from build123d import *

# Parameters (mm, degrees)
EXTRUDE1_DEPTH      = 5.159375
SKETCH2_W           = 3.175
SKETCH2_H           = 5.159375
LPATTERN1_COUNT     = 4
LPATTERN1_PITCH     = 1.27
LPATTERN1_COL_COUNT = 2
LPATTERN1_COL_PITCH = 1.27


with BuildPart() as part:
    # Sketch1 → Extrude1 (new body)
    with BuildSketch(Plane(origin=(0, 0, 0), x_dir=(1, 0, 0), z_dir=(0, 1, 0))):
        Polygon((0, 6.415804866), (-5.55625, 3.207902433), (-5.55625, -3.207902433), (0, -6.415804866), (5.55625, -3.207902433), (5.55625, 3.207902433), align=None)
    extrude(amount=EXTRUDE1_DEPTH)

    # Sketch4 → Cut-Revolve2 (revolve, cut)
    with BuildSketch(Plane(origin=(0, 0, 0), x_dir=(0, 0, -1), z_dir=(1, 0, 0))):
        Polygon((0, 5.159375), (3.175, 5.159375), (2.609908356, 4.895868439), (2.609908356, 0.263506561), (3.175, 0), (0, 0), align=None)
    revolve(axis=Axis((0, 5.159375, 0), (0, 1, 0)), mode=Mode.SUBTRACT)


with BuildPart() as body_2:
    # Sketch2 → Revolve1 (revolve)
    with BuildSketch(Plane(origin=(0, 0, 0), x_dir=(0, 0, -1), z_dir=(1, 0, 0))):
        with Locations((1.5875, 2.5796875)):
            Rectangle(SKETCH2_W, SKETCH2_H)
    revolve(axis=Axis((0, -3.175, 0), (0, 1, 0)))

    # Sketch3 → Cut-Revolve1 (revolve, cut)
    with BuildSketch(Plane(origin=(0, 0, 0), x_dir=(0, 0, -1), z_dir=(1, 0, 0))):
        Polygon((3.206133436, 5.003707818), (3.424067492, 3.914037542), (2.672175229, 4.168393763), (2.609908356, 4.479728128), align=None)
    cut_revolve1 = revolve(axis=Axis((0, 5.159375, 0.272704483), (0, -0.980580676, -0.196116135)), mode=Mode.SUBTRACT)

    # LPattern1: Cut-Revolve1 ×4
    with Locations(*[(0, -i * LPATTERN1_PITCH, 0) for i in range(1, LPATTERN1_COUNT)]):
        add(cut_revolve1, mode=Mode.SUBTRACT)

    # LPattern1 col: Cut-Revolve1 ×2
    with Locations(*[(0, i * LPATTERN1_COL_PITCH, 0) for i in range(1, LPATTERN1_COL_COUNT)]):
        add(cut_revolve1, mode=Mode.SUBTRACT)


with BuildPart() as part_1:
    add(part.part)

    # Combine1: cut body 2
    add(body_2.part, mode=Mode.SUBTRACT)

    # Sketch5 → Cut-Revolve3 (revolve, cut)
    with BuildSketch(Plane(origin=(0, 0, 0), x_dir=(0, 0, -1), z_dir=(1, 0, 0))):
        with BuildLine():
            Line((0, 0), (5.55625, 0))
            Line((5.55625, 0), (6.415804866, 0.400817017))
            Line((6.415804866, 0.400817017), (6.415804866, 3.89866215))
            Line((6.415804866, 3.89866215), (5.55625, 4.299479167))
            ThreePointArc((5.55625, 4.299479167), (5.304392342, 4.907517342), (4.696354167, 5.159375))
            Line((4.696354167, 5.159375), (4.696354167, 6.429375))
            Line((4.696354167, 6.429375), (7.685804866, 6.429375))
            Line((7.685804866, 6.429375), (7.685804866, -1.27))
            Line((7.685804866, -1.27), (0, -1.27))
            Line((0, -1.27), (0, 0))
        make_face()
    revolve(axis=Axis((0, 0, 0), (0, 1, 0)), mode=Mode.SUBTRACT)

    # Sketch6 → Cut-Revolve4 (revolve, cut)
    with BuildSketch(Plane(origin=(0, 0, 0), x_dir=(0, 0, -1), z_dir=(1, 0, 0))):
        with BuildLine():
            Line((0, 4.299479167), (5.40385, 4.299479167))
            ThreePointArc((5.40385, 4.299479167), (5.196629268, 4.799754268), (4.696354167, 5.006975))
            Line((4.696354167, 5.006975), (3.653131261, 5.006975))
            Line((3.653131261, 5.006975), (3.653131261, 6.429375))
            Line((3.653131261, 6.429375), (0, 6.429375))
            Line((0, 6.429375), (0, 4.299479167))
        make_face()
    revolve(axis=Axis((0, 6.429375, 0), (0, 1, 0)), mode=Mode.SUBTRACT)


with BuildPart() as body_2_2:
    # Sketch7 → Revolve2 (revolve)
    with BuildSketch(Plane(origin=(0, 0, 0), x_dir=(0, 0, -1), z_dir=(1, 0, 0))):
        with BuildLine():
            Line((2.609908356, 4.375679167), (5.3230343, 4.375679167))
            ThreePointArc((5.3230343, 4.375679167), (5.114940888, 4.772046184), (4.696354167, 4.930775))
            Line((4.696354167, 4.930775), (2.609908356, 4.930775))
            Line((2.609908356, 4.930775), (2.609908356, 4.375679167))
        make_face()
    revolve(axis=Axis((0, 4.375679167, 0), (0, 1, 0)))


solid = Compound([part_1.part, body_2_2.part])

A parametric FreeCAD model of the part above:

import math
import FreeCAD as App
import Part
import Sketcher
Q = App.Units.Quantity

doc = App.newDocument("Part")
body = doc.addObject("PartDesign::Body", "Body")

sketch1 = body.newObject("Sketcher::SketchObject", "Sketch")
sketch1.AttachmentSupport = (doc.getObject("XZ_Plane"), [""])
sketch1.MapMode = "FlatFace"
sketch1.addGeometry(Part.LineSegment(App.Vector(0, -6, 0), App.Vector(-6, -3, 0)), False)
sketch1.addGeometry(Part.LineSegment(App.Vector(-6, -3, 0), App.Vector(-6, 3, 0)), False)
sketch1.addGeometry(Part.LineSegment(App.Vector(-6, 3, 0), App.Vector(0, 6, 0)), False)
sketch1.addGeometry(Part.LineSegment(App.Vector(0, 6, 0), App.Vector(6, 3, 0)), False)
sketch1.addGeometry(Part.LineSegment(App.Vector(6, 3, 0), App.Vector(6, -3, 0)), False)
sketch1.addGeometry(Part.LineSegment(App.Vector(6, -3, 0), App.Vector(0, -6, 0)), False)
sketch1.addConstraint(Sketcher.Constraint("Coincident", 0, 2, 1, 1))
sketch1.addConstraint(Sketcher.Constraint("Coincident", 1, 2, 2, 1))
sketch1.addConstraint(Sketcher.Constraint("Coincident", 2, 2, 3, 1))
sketch1.addConstraint(Sketcher.Constraint("Coincident", 3, 2, 4, 1))
sketch1.addConstraint(Sketcher.Constraint("Coincident", 4, 2, 5, 1))
sketch1.addConstraint(Sketcher.Constraint("Coincident", 5, 2, 0, 1))
sketch1.addConstraint(Sketcher.Constraint("Vertical", 1))
sketch1.addConstraint(Sketcher.Constraint("Vertical", 4))
sketch1.addConstraint(Sketcher.Constraint("Symmetric", 0, 2, 3, 2, -1, 1))
sketch1.addConstraint(Sketcher.Constraint("Symmetric", 2, 2, 5, 2, -1, 1))
sketch1.addConstraint(Sketcher.Constraint("PointOnObject", 2, 2, -2))
sketch1.addConstraint(Sketcher.Constraint("Parallel", 2, 5))
sketch1.addConstraint(Sketcher.Constraint("Horizontal", 1, 2, 3, 2))
sketch1.addConstraint(Sketcher.Constraint("Angle", 0, Q("150 deg")))
sketch1.addConstraint(Sketcher.Constraint("DistanceX", 0, 2, -1, 1, Q("0.21875 in")))
sketch1.addConstraint(Sketcher.Constraint("DistanceY", 1, 1, 1, 2, 6.415805))
pad1 = body.newObject("PartDesign::Pad", "Pad")
pad1.Profile = sketch1
pad1.Length = Q("0.203125 in")
pad1.Reversed = True

sketch2 = body.newObject("Sketcher::SketchObject", "Sketch001")
sketch2.AttachmentSupport = (doc.getObject("YZ_Plane"), [""])
sketch2.MapMode = "FlatFace"
sketch2.addGeometry(Part.LineSegment(App.Vector(5.2, -3.2, 0), App.Vector(5.2, 0, 0)), False)
sketch2.addGeometry(Part.LineSegment(App.Vector(5.2, 0, 0), App.Vector(0, 0, 0)), False)
sketch2.addGeometry(Part.LineSegment(App.Vector(0, 0, 0), App.Vector(0, -3.2, 0)), False)
sketch2.addGeometry(Part.LineSegment(App.Vector(0, -3.2, 0), App.Vector(0.3, -2.6, 0)), False)
sketch2.addGeometry(Part.LineSegment(App.Vector(0.3, -2.6, 0), App.Vector(4.9, -2.6, 0)), False)
sketch2.addGeometry(Part.LineSegment(App.Vector(4.9, -2.6, 0), App.Vector(5.2, -3.2, 0)), False)
sketch2.addConstraint(Sketcher.Constraint("Coincident", 0, 2, 1, 1))
sketch2.addConstraint(Sketcher.Constraint("Coincident", 1, 2, 2, 1))
sketch2.addConstraint(Sketcher.Constraint("Coincident", 2, 2, 3, 1))
sketch2.addConstraint(Sketcher.Constraint("Coincident", 3, 2, 4, 1))
sketch2.addConstraint(Sketcher.Constraint("Coincident", 4, 2, 5, 1))
sketch2.addConstraint(Sketcher.Constraint("Coincident", 5, 2, 0, 1))
sketch2.addConstraint(Sketcher.Constraint("Vertical", 0))
sketch2.addConstraint(Sketcher.Constraint("Horizontal", 1))
sketch2.addConstraint(Sketcher.Constraint("Vertical", 2))
sketch2.addConstraint(Sketcher.Constraint("Horizontal", 4))
sketch2.addConstraint(Sketcher.Constraint("Coincident", 1, 2, -1, 1))
sketch2.addConstraint(Sketcher.Constraint("Horizontal", 2, 2, 5, 2))
sketch2.addConstraint(Sketcher.Constraint("Equal", 3, 5))
sketch2.addConstraint(Sketcher.Constraint("Angle", 3, Q("65 deg")))
sketch2.addConstraint(Sketcher.Constraint("DistanceX", 1, 2, 1, 1, Q("0.203125 in")))
sketch2.addConstraint(Sketcher.Constraint("DistanceY", 0, 1, 0, 2, Q("0.125 in")))
sketch2.addConstraint(Sketcher.Constraint("DistanceX", 4, 1, 4, 2, 4.632362))
groove = body.newObject("PartDesign::Groove", "Groove")
groove.Profile = sketch2
groove.ReferenceAxis = (sketch2, ["H_Axis"])
groove.Angle = 360
body2 = doc.addObject("PartDesign::Body", "Body001")

sketch3 = body2.newObject("Sketcher::SketchObject", "Sketch002")
sketch3.AttachmentSupport = (doc.getObject("YZ_Plane001"), [""])
sketch3.MapMode = "FlatFace"
sketch3.addGeometry(Part.LineSegment(App.Vector(5.2, 0, 0), App.Vector(0, 0, 0)), False)
sketch3.addGeometry(Part.LineSegment(App.Vector(0, 0, 0), App.Vector(0, -3.2, 0)), False)
sketch3.addGeometry(Part.LineSegment(App.Vector(0, -3.2, 0), App.Vector(5.2, -3.2, 0)), False)
sketch3.addGeometry(Part.LineSegment(App.Vector(5.2, -3.2, 0), App.Vector(5.2, 0, 0)), False)
sketch3.addConstraint(Sketcher.Constraint("Coincident", 0, 2, 1, 1))
sketch3.addConstraint(Sketcher.Constraint("Coincident", 1, 2, 2, 1))
sketch3.addConstraint(Sketcher.Constraint("Coincident", 2, 2, 3, 1))
sketch3.addConstraint(Sketcher.Constraint("Coincident", 3, 2, 0, 1))
sketch3.addConstraint(Sketcher.Constraint("Horizontal", 0))
sketch3.addConstraint(Sketcher.Constraint("Vertical", 1))
sketch3.addConstraint(Sketcher.Constraint("Horizontal", 2))
sketch3.addConstraint(Sketcher.Constraint("Vertical", 3))
sketch3.addConstraint(Sketcher.Constraint("Coincident", 0, 2, -1, 1))
sketch3.addConstraint(Sketcher.Constraint("DistanceX", 0, 2, 0, 1, Q("0.203125 in")))
sketch3.addConstraint(Sketcher.Constraint("DistanceY", 1, 2, 1, 1, Q("0.125 in")))
revolution = body2.newObject("PartDesign::Revolution", "Revolution")
revolution.Profile = sketch3
revolution.ReferenceAxis = (sketch3, ["H_Axis"])
revolution.Angle = 360

sketch4 = body2.newObject("Sketcher::SketchObject", "Sketch003")
sketch4.AttachmentSupport = (doc.getObject("YZ_Plane001"), [""])
sketch4.MapMode = "FlatFace"
sketch4.addGeometry(Part.LineSegment(App.Vector(3.91, -3.42, 0), App.Vector(5, -3.21, 0)), False)
sketch4.addGeometry(Part.LineSegment(App.Vector(5, -3.21, 0), App.Vector(4.48, -2.61, 0)), False)
sketch4.addGeometry(Part.LineSegment(App.Vector(4.48, -2.61, 0), App.Vector(4.17, -2.67, 0)), False)
sketch4.addGeometry(Part.LineSegment(App.Vector(4.17, -2.67, 0), App.Vector(3.91, -3.42, 0)), False)
sketch4.addGeometry(Part.LineSegment(App.Vector(4.34, 0.11, 0), App.Vector(3.25, -0.11, 0)), True)
sketch4.addConstraint(Sketcher.Constraint("Coincident", 0, 2, 1, 1))
sketch4.addConstraint(Sketcher.Constraint("Coincident", 1, 2, 2, 1))
sketch4.addConstraint(Sketcher.Constraint("Coincident", 2, 2, 3, 1))
sketch4.addConstraint(Sketcher.Constraint("Coincident", 3, 2, 0, 1))
sketch4.addConstraint(Sketcher.Constraint("Parallel", 0, 2))
sketch4.addConstraint(Sketcher.Constraint("Parallel", 2, 4))
sketch4.addConstraint(Sketcher.Constraint("Equal", 1, 3))
sketch4.addConstraint(Sketcher.Constraint("Equal", 0, 4))
sketch4.addConstraint(Sketcher.Constraint("Distance", 1, Q("0.03125 in")))
sketch4.addConstraint(Sketcher.Constraint("Distance", 2, Q("0.0125 in")))
sketch4.addConstraint(Sketcher.Constraint("DistanceY", 0, 2, 4, 1, 3.3151))
sketch4.addConstraint(Sketcher.Constraint("Distance", 0, 1.11125))
sketch4.addConstraint(Sketcher.Constraint("DistanceX", -1, 1, 1, 2, 4.479728))
sketch4.addConstraint(Sketcher.Constraint("DistanceY", 1, 2, -1, 1, 2.609908))
sketch4.addConstraint(Sketcher.Constraint("DistanceX", 1, 2, 0, 2, 0.52398))
sketch4.addConstraint(Sketcher.Constraint("DistanceX", 4, 1, 1, 2, 0.13904))
groove2 = body2.newObject("PartDesign::Groove", "Groove001")
groove2.Profile = sketch4
groove2.ReferenceAxis = (sketch4, ["Axis0"])
groove2.Angle = 360
doc.recompute()

linearpattern = body2.newObject("PartDesign::LinearPattern", "LinearPattern")
linearpattern.Originals = [groove2]
linearpattern.Direction = (doc.getObject("Y_Axis001"), [""])
linearpattern.Mode = "offset"
linearpattern.Offset = Q("0.05 in")
linearpattern.Occurrences = 4
linearpattern.Reversed = True
body2.Tip = linearpattern
doc.recompute()

linearpattern2 = body2.newObject("PartDesign::LinearPattern", "LinearPattern001")
linearpattern2.Originals = [groove2]
linearpattern2.Direction = (doc.getObject("Y_Axis001"), [""])
linearpattern2.Mode = "offset"
linearpattern2.Offset = Q("0.05 in")
linearpattern2.Occurrences = 2
body2.Tip = linearpattern2
doc.recompute()

boolean = body.newObject("PartDesign::Boolean", "Boolean")
boolean.Type = "Cut"
boolean.addObjects([body2])

sketch5 = body.newObject("Sketcher::SketchObject", "Sketch004")
sketch5.AttachmentSupport = (doc.getObject("YZ_Plane"), [""])
sketch5.MapMode = "FlatFace"
sketch5.addGeometry(Part.LineSegment(App.Vector(0, -5.6, 0), App.Vector(0, 0, 0)), False)
sketch5.addGeometry(Part.LineSegment(App.Vector(0, 0, 0), App.Vector(-1.3, 0, 0)), False)
sketch5.addGeometry(Part.LineSegment(App.Vector(-1.3, 0, 0), App.Vector(-1.3, -7.7, 0)), False)
sketch5.addGeometry(Part.LineSegment(App.Vector(-1.3, -7.7, 0), App.Vector(6.4, -7.7, 0)), False)
sketch5.addGeometry(Part.LineSegment(App.Vector(6.4, -7.7, 0), App.Vector(6.4, -4.7, 0)), False)
sketch5.addGeometry(Part.LineSegment(App.Vector(6.4, -4.7, 0), App.Vector(5.2, -4.7, 0)), False)
sketch5.addGeometry(Part.ArcOfCircle(Part.Circle(App.Vector(4.3, -4.7, 0), App.Vector(0, 0, 1), 0.9), math.radians(-90), math.radians(0)), False)
sketch5.addGeometry(Part.LineSegment(App.Vector(4.3, -5.6, 0), App.Vector(3.9, -6.4, 0)), False)
sketch5.addGeometry(Part.LineSegment(App.Vector(3.9, -6.4, 0), App.Vector(0.4, -6.4, 0)), False)
sketch5.addGeometry(Part.LineSegment(App.Vector(0.4, -6.4, 0), App.Vector(0, -5.6, 0)), False)
sketch5.addConstraint(Sketcher.Constraint("Coincident", 0, 2, 1, 1))
sketch5.addConstraint(Sketcher.Constraint("Coincident", 1, 2, 2, 1))
sketch5.addConstraint(Sketcher.Constraint("Coincident", 2, 2, 3, 1))
sketch5.addConstraint(Sketcher.Constraint("Coincident", 3, 2, 4, 1))
sketch5.addConstraint(Sketcher.Constraint("Coincident", 4, 2, 5, 1))
sketch5.addConstraint(Sketcher.Constraint("Coincident", 5, 2, 6, 2))
sketch5.addConstraint(Sketcher.Constraint("Coincident", 6, 1, 7, 1))
sketch5.addConstraint(Sketcher.Constraint("Coincident", 7, 2, 8, 1))
sketch5.addConstraint(Sketcher.Constraint("Coincident", 8, 2, 9, 1))
sketch5.addConstraint(Sketcher.Constraint("Coincident", 9, 2, 0, 1))
sketch5.addConstraint(Sketcher.Constraint("Vertical", 0))
sketch5.addConstraint(Sketcher.Constraint("Horizontal", 1))
sketch5.addConstraint(Sketcher.Constraint("Vertical", 2))
sketch5.addConstraint(Sketcher.Constraint("Horizontal", 3))
sketch5.addConstraint(Sketcher.Constraint("Vertical", 4))
sketch5.addConstraint(Sketcher.Constraint("Horizontal", 5))
sketch5.addConstraint(Sketcher.Constraint("Horizontal", 8))
sketch5.addConstraint(Sketcher.Constraint("Coincident", 0, 2, -1, 1))
sketch5.addConstraint(Sketcher.Constraint("Horizontal", 6, 3, 4, 2))
sketch5.addConstraint(Sketcher.Constraint("Horizontal", 6, 1, 9, 2))
sketch5.addConstraint(Sketcher.Constraint("Equal", 1, 5))
sketch5.addConstraint(Sketcher.Constraint("Equal", 7, 9))
sketch5.addConstraint(Sketcher.Constraint("Angle", 7, Q("-115 deg")))
sketch5.addConstraint(Sketcher.Constraint("DistanceX", 1, 2, 1, 1, Q("0.05 in")))
sketch5.addConstraint(Sketcher.Constraint("DistanceY", 0, 1, 0, 2, Q("0.21875 in")))
sketch5.addConstraint(Sketcher.Constraint("DistanceY", 3, 2, 7, 2, Q("0.05 in")))
sketch5.addConstraint(Sketcher.Constraint("DistanceX", -1, 1, 5, 2, Q("0.203125 in")))
sketch5.addConstraint(Sketcher.Constraint("Radius", 6, 0.859896))
sketch5.addConstraint(Sketcher.Constraint("DistanceY", 4, 1, 4, 2, 2.989451))
sketch5.addConstraint(Sketcher.Constraint("DistanceX", 8, 2, 8, 1, 3.497845))
groove3 = body.newObject("PartDesign::Groove", "Groove002")
groove3.Profile = sketch5
groove3.ReferenceAxis = (sketch5, ["H_Axis"])
groove3.Angle = 360

sketch6 = body.newObject("Sketcher::SketchObject", "Sketch005")
sketch6.AttachmentSupport = (doc.getObject("YZ_Plane"), [""])
sketch6.MapMode = "FlatFace"
sketch6.addGeometry(Part.LineSegment(App.Vector(4.3, 0, 0), App.Vector(4.3, -5.4, 0)), False)
sketch6.addGeometry(Part.ArcOfCircle(Part.Circle(App.Vector(4.3, -4.7, 0), App.Vector(0, 0, 1), 0.7), math.radians(-90), math.radians(0)), False)
sketch6.addGeometry(Part.LineSegment(App.Vector(5, -4.7, 0), App.Vector(5, -3.7, 0)), False)
sketch6.addGeometry(Part.LineSegment(App.Vector(5, -3.7, 0), App.Vector(6.4, -3.7, 0)), False)
sketch6.addGeometry(Part.LineSegment(App.Vector(6.4, -3.7, 0), App.Vector(6.4, 0, 0)), False)
sketch6.addGeometry(Part.LineSegment(App.Vector(6.4, 0, 0), App.Vector(4.3, 0, 0)), False)
sketch6.addConstraint(Sketcher.Constraint("Coincident", 0, 2, 1, 1))
sketch6.addConstraint(Sketcher.Constraint("Tangent", 1, 2, 2, 1))
sketch6.addConstraint(Sketcher.Constraint("Coincident", 2, 2, 3, 1))
sketch6.addConstraint(Sketcher.Constraint("Coincident", 3, 2, 4, 1))
sketch6.addConstraint(Sketcher.Constraint("Coincident", 4, 2, 5, 1))
sketch6.addConstraint(Sketcher.Constraint("Coincident", 5, 2, 0, 1))
sketch6.addConstraint(Sketcher.Constraint("Vertical", 0))
sketch6.addConstraint(Sketcher.Constraint("Vertical", 2))
sketch6.addConstraint(Sketcher.Constraint("Horizontal", 3))
sketch6.addConstraint(Sketcher.Constraint("Vertical", 4))
sketch6.addConstraint(Sketcher.Constraint("Horizontal", 5))
sketch6.addConstraint(Sketcher.Constraint("PointOnObject", 4, 2, -1))
sketch6.addConstraint(Sketcher.Constraint("Vertical", 1, 3, 0, 2))
sketch6.addConstraint(Sketcher.Constraint("DistanceX", 3, 1, 3, 2, Q("0.056 in")))
sketch6.addConstraint(Sketcher.Constraint("Radius", 1, 0.707496))
sketch6.addConstraint(Sketcher.Constraint("DistanceY", 0, 2, 0, 1, 5.40385))
sketch6.addConstraint(Sketcher.Constraint("DistanceY", 4, 1, 4, 2, 3.653131))
sketch6.addConstraint(Sketcher.Constraint("DistanceX", -1, 1, 1, 3, 4.299479))
groove4 = body.newObject("PartDesign::Groove", "Groove003")
groove4.Profile = sketch6
groove4.ReferenceAxis = (sketch6, ["H_Axis"])
groove4.Angle = 360
body3 = doc.addObject("PartDesign::Body", "Body002")

sketch7 = body3.newObject("Sketcher::SketchObject", "Sketch006")
sketch7.AttachmentSupport = (doc.getObject("YZ_Plane002"), [""])
sketch7.MapMode = "FlatFace"
sketch7.addGeometry(Part.LineSegment(App.Vector(4.4, -2.6, 0), App.Vector(4.4, -5.3, 0)), False)
sketch7.addGeometry(Part.ArcOfCircle(Part.Circle(App.Vector(4.3, -4.7, 0), App.Vector(0, 0, 1), 0.6), math.radians(-83), math.radians(0)), False)
sketch7.addGeometry(Part.LineSegment(App.Vector(4.9, -4.7, 0), App.Vector(4.9, -2.6, 0)), False)
sketch7.addGeometry(Part.LineSegment(App.Vector(4.9, -2.6, 0), App.Vector(4.4, -2.6, 0)), False)
sketch7.addConstraint(Sketcher.Constraint("Coincident", 0, 2, 1, 1))
sketch7.addConstraint(Sketcher.Constraint("Tangent", 1, 2, 2, 1))
sketch7.addConstraint(Sketcher.Constraint("Coincident", 2, 2, 3, 1))
sketch7.addConstraint(Sketcher.Constraint("Coincident", 3, 2, 0, 1))
sketch7.addConstraint(Sketcher.Constraint("Vertical", 0))
sketch7.addConstraint(Sketcher.Constraint("Vertical", 2))
sketch7.addConstraint(Sketcher.Constraint("Horizontal", 3))
sketch7.addConstraint(Sketcher.Constraint("DistanceX", 1, 3, 0, 2, Q("0.003 in")))
sketch7.addConstraint(Sketcher.Constraint("Radius", 1, 0.631296))
sketch7.addConstraint(Sketcher.Constraint("DistanceY", 0, 2, 0, 1, 2.713126))
sketch7.addConstraint(Sketcher.Constraint("DistanceX", -1, 1, 1, 3, 4.299479))
sketch7.addConstraint(Sketcher.Constraint("DistanceY", 2, 2, -1, 1, 2.609908))
revolution2 = body3.newObject("PartDesign::Revolution", "Revolution001")
revolution2.Profile = sketch7
revolution2.ReferenceAxis = (sketch7, ["H_Axis"])
revolution2.Angle = 360

doc.recompute()
